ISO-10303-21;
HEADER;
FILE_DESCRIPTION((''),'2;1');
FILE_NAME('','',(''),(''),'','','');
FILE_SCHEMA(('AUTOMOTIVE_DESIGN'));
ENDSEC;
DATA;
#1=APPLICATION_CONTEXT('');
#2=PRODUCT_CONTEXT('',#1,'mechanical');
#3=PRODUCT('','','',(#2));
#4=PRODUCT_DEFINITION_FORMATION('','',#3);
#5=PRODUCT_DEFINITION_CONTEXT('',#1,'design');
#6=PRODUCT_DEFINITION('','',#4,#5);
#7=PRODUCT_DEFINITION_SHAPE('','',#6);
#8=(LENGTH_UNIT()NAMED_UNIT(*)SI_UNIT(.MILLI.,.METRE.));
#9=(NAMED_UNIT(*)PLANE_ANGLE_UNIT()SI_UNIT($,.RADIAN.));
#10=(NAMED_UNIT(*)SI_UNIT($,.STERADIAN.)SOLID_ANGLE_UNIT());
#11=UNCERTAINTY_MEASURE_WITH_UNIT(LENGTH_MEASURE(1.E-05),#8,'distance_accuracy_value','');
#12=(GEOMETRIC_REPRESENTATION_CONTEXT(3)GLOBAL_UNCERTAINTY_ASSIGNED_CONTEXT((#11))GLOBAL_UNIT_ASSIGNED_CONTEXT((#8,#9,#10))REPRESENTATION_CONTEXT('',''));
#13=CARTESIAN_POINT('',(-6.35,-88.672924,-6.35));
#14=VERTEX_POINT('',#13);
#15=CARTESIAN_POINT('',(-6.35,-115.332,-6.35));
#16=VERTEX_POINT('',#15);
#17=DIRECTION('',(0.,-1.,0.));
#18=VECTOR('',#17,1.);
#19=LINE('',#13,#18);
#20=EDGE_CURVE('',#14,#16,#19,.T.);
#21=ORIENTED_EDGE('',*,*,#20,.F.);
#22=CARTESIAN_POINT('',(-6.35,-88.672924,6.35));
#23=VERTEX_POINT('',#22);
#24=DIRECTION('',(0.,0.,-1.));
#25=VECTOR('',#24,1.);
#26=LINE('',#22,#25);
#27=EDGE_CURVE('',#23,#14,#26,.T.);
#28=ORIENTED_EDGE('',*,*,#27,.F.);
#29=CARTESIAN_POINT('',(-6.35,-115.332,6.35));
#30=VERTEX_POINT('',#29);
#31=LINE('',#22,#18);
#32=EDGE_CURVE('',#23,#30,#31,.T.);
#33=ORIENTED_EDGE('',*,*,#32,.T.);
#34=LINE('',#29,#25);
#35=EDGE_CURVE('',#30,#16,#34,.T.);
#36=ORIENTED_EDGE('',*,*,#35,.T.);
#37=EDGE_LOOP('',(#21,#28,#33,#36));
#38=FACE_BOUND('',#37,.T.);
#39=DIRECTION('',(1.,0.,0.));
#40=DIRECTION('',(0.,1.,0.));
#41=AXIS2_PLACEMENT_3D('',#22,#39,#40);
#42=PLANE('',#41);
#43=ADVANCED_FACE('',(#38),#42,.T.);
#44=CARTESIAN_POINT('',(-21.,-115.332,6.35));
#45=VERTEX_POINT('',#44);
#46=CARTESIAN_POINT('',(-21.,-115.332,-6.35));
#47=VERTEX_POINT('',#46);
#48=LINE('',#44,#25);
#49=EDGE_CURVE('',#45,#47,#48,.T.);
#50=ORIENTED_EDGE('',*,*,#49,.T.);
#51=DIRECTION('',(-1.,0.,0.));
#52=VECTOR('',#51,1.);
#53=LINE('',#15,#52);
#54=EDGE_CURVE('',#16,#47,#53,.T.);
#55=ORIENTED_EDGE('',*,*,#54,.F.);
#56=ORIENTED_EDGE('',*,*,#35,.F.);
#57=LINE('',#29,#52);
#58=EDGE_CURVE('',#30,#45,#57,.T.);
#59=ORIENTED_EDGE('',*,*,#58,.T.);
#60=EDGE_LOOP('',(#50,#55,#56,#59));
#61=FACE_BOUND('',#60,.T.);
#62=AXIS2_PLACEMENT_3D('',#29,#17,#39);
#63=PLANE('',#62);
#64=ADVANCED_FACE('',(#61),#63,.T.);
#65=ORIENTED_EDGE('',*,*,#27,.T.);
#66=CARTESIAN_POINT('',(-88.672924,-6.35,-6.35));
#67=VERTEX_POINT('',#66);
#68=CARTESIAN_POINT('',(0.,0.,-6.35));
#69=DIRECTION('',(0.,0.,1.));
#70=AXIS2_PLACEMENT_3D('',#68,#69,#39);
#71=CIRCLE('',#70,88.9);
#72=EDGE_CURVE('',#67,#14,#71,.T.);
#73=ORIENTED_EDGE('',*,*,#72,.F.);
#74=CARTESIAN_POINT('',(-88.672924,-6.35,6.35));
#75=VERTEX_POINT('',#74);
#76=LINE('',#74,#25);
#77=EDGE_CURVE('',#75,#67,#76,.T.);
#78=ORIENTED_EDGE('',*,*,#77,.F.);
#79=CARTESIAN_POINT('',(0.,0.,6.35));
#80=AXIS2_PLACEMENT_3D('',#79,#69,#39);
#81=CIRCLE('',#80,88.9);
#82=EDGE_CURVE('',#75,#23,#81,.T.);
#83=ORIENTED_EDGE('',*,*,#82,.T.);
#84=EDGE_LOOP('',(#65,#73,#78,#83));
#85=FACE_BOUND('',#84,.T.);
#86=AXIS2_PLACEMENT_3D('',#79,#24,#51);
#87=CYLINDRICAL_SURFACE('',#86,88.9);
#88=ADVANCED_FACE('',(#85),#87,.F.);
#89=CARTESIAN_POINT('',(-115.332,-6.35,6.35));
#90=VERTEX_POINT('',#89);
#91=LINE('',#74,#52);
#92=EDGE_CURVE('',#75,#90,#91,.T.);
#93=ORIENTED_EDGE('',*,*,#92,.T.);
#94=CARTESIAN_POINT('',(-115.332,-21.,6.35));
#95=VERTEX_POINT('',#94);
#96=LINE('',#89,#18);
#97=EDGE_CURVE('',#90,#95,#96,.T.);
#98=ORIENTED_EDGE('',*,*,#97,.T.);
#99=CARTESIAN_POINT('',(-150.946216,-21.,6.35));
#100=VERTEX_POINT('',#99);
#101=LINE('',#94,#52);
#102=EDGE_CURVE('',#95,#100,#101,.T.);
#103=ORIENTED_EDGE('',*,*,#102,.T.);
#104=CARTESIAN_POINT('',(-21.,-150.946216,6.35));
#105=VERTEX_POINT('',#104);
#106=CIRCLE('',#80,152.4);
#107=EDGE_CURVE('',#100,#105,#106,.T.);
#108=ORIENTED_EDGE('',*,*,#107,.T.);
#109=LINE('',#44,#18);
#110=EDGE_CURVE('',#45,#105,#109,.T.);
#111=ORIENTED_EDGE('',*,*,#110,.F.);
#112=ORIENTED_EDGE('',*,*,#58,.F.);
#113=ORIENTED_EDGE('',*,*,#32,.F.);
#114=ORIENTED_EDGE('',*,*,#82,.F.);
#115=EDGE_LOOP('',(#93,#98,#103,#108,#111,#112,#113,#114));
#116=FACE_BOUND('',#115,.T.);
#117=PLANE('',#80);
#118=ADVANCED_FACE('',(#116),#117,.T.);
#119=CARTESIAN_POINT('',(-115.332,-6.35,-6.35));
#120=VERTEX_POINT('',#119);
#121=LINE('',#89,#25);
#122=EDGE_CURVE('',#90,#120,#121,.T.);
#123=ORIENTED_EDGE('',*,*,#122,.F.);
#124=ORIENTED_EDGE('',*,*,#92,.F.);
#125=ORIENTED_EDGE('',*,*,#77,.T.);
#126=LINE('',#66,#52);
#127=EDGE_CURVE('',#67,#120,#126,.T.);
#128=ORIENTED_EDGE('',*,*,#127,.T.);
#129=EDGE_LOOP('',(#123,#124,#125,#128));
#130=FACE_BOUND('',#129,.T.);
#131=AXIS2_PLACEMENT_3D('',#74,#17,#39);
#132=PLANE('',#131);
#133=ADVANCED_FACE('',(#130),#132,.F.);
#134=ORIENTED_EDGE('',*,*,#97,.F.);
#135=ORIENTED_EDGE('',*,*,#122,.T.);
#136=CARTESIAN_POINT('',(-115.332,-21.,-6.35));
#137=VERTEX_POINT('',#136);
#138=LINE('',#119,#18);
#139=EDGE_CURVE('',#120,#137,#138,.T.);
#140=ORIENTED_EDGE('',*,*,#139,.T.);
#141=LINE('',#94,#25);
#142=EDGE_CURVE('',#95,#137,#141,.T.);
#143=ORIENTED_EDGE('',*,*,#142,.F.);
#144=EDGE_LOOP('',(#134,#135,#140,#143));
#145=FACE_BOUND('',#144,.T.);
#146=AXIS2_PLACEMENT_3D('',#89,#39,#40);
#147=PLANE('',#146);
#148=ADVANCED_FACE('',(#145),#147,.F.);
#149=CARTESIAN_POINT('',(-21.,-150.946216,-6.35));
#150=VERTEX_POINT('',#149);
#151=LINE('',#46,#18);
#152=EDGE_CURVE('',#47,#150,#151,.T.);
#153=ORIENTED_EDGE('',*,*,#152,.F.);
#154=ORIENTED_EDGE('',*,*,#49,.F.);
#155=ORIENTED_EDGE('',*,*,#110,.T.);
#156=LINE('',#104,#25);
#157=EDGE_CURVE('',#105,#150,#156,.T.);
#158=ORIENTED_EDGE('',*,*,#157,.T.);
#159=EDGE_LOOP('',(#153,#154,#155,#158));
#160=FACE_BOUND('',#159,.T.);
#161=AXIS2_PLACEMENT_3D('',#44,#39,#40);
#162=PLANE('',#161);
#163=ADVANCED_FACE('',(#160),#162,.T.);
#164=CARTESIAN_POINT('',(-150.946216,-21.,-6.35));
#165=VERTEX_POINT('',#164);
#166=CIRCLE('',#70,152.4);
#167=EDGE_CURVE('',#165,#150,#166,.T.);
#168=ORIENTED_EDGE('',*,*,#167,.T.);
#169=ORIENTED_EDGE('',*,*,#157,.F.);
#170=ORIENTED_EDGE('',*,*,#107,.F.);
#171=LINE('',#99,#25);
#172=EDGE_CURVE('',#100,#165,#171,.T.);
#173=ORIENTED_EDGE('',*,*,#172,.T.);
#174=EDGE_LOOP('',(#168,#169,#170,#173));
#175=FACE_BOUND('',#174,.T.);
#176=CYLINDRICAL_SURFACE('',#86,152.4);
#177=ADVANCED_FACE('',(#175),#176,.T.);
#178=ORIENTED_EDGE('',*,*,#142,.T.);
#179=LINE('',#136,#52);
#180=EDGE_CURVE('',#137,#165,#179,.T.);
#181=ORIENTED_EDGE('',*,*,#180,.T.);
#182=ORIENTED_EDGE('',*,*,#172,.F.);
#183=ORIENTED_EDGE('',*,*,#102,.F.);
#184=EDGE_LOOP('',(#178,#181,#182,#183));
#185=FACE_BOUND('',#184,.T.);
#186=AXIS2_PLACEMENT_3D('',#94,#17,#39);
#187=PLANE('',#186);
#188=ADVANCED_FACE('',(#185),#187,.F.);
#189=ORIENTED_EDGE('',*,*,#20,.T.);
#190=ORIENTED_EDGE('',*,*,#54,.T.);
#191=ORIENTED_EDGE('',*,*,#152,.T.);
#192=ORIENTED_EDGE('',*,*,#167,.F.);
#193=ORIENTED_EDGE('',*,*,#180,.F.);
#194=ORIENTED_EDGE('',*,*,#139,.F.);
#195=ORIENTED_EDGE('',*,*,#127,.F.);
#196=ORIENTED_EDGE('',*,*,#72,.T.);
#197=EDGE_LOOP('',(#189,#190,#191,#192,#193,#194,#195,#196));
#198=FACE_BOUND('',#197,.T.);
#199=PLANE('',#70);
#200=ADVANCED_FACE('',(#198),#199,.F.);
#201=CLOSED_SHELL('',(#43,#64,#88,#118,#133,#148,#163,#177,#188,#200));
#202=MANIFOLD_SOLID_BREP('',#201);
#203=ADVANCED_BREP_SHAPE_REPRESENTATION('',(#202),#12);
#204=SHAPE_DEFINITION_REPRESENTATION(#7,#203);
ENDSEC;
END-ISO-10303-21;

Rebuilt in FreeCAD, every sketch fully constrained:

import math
import FreeCAD as App
import Part
import Sketcher
from FreeCAD import Vector
Q = App.Units.Quantity

doc = App.newDocument("Part")
body = doc.addObject("PartDesign::Body", "Body")

# Sketch on XY plane
sketch1 = body.newObject("Sketcher::SketchObject", "Sketch")
sketch1.AttachmentSupport = (doc.getObject("XY_Plane"), [""])
sketch1.MapMode = "FlatFace"
sketch1.addGeometry(Part.LineSegment(Vector(-6, -115, 0), Vector(-6, -89, 0)), False)
sketch1.addGeometry(Part.ArcOfCircle(Part.Circle(Vector(0, 0, 0), Vector(0, 0, 1), 89), math.radians(-176), math.radians(-94)), False)
sketch1.addGeometry(Part.LineSegment(Vector(-89, -6, 0), Vector(-115, -6, 0)), False)
sketch1.addGeometry(Part.LineSegment(Vector(-115, -6, 0), Vector(-115, -21, 0)), False)
sketch1.addGeometry(Part.LineSegment(Vector(-115, -21, 0), Vector(-151, -21, 0)), False)
sketch1.addGeometry(Part.ArcOfCircle(Part.Circle(Vector(0, 0, 0), Vector(0, 0, 1), 152), math.radians(-172), math.radians(-98)), False)
sketch1.addGeometry(Part.LineSegment(Vector(-21, -151, 0), Vector(-21, -115, 0)), False)
sketch1.addGeometry(Part.LineSegment(Vector(-21, -115, 0), Vector(-6, -115, 0)), False)
sketch1.addConstraint(Sketcher.Constraint("Coincident", 0, 2, 1, 2))
sketch1.addConstraint(Sketcher.Constraint("Coincident", 1, 1, 2, 1))
sketch1.addConstraint(Sketcher.Constraint("Coincident", 2, 2, 3, 1))
sketch1.addConstraint(Sketcher.Constraint("Coincident", 3, 2, 4, 1))
sketch1.addConstraint(Sketcher.Constraint("Coincident", 4, 2, 5, 1))
sketch1.addConstraint(Sketcher.Constraint("Coincident", 5, 2, 6, 1))
sketch1.addConstraint(Sketcher.Constraint("Coincident", 6, 2, 7, 1))
sketch1.addConstraint(Sketcher.Constraint("Coincident", 7, 2, 0, 1))
sketch1.addConstraint(Sketcher.Constraint("Vertical", 0))
sketch1.addConstraint(Sketcher.Constraint("Horizontal", 2))
sketch1.addConstraint(Sketcher.Constraint("Vertical", 3))
sketch1.addConstraint(Sketcher.Constraint("Horizontal", 4))
sketch1.addConstraint(Sketcher.Constraint("Vertical", 6))
sketch1.addConstraint(Sketcher.Constraint("Horizontal", 7))
sketch1.addConstraint(Sketcher.Constraint("Coincident", 1, 3, -1, 1))
sketch1.addConstraint(Sketcher.Constraint("Coincident", 5, 3, -1, 1))
sketch1.addConstraint(Sketcher.Constraint("Equal", 2, 0))
sketch1.addConstraint(Sketcher.Constraint("Equal", 7, 3))
sketch1.addConstraint(Sketcher.Constraint("Equal", 4, 6))
sketch1.addConstraint(Sketcher.Constraint("Radius", 5, Q("6 in")))
sketch1.addConstraint(Sketcher.Constraint("Radius", 1, Q("3.5 in")))
sketch1.addConstraint(Sketcher.Constraint("DistanceX", 0, 2, -1, 1, Q("0.25 in")))
sketch1.addConstraint(Sketcher.Constraint("DistanceX", 7, 1, 7, 2, Q("14.65 mm")))
sketch1.addConstraint(Sketcher.Constraint("DistanceX", 2, 2, -1, 1, Q("115.332 mm")))
pad1 = body.newObject("PartDesign::Pad", "Pad")
pad1.Profile = sketch1
pad1.Length = Q("0.5 in")
pad1.Midplane = True

doc.recompute()
